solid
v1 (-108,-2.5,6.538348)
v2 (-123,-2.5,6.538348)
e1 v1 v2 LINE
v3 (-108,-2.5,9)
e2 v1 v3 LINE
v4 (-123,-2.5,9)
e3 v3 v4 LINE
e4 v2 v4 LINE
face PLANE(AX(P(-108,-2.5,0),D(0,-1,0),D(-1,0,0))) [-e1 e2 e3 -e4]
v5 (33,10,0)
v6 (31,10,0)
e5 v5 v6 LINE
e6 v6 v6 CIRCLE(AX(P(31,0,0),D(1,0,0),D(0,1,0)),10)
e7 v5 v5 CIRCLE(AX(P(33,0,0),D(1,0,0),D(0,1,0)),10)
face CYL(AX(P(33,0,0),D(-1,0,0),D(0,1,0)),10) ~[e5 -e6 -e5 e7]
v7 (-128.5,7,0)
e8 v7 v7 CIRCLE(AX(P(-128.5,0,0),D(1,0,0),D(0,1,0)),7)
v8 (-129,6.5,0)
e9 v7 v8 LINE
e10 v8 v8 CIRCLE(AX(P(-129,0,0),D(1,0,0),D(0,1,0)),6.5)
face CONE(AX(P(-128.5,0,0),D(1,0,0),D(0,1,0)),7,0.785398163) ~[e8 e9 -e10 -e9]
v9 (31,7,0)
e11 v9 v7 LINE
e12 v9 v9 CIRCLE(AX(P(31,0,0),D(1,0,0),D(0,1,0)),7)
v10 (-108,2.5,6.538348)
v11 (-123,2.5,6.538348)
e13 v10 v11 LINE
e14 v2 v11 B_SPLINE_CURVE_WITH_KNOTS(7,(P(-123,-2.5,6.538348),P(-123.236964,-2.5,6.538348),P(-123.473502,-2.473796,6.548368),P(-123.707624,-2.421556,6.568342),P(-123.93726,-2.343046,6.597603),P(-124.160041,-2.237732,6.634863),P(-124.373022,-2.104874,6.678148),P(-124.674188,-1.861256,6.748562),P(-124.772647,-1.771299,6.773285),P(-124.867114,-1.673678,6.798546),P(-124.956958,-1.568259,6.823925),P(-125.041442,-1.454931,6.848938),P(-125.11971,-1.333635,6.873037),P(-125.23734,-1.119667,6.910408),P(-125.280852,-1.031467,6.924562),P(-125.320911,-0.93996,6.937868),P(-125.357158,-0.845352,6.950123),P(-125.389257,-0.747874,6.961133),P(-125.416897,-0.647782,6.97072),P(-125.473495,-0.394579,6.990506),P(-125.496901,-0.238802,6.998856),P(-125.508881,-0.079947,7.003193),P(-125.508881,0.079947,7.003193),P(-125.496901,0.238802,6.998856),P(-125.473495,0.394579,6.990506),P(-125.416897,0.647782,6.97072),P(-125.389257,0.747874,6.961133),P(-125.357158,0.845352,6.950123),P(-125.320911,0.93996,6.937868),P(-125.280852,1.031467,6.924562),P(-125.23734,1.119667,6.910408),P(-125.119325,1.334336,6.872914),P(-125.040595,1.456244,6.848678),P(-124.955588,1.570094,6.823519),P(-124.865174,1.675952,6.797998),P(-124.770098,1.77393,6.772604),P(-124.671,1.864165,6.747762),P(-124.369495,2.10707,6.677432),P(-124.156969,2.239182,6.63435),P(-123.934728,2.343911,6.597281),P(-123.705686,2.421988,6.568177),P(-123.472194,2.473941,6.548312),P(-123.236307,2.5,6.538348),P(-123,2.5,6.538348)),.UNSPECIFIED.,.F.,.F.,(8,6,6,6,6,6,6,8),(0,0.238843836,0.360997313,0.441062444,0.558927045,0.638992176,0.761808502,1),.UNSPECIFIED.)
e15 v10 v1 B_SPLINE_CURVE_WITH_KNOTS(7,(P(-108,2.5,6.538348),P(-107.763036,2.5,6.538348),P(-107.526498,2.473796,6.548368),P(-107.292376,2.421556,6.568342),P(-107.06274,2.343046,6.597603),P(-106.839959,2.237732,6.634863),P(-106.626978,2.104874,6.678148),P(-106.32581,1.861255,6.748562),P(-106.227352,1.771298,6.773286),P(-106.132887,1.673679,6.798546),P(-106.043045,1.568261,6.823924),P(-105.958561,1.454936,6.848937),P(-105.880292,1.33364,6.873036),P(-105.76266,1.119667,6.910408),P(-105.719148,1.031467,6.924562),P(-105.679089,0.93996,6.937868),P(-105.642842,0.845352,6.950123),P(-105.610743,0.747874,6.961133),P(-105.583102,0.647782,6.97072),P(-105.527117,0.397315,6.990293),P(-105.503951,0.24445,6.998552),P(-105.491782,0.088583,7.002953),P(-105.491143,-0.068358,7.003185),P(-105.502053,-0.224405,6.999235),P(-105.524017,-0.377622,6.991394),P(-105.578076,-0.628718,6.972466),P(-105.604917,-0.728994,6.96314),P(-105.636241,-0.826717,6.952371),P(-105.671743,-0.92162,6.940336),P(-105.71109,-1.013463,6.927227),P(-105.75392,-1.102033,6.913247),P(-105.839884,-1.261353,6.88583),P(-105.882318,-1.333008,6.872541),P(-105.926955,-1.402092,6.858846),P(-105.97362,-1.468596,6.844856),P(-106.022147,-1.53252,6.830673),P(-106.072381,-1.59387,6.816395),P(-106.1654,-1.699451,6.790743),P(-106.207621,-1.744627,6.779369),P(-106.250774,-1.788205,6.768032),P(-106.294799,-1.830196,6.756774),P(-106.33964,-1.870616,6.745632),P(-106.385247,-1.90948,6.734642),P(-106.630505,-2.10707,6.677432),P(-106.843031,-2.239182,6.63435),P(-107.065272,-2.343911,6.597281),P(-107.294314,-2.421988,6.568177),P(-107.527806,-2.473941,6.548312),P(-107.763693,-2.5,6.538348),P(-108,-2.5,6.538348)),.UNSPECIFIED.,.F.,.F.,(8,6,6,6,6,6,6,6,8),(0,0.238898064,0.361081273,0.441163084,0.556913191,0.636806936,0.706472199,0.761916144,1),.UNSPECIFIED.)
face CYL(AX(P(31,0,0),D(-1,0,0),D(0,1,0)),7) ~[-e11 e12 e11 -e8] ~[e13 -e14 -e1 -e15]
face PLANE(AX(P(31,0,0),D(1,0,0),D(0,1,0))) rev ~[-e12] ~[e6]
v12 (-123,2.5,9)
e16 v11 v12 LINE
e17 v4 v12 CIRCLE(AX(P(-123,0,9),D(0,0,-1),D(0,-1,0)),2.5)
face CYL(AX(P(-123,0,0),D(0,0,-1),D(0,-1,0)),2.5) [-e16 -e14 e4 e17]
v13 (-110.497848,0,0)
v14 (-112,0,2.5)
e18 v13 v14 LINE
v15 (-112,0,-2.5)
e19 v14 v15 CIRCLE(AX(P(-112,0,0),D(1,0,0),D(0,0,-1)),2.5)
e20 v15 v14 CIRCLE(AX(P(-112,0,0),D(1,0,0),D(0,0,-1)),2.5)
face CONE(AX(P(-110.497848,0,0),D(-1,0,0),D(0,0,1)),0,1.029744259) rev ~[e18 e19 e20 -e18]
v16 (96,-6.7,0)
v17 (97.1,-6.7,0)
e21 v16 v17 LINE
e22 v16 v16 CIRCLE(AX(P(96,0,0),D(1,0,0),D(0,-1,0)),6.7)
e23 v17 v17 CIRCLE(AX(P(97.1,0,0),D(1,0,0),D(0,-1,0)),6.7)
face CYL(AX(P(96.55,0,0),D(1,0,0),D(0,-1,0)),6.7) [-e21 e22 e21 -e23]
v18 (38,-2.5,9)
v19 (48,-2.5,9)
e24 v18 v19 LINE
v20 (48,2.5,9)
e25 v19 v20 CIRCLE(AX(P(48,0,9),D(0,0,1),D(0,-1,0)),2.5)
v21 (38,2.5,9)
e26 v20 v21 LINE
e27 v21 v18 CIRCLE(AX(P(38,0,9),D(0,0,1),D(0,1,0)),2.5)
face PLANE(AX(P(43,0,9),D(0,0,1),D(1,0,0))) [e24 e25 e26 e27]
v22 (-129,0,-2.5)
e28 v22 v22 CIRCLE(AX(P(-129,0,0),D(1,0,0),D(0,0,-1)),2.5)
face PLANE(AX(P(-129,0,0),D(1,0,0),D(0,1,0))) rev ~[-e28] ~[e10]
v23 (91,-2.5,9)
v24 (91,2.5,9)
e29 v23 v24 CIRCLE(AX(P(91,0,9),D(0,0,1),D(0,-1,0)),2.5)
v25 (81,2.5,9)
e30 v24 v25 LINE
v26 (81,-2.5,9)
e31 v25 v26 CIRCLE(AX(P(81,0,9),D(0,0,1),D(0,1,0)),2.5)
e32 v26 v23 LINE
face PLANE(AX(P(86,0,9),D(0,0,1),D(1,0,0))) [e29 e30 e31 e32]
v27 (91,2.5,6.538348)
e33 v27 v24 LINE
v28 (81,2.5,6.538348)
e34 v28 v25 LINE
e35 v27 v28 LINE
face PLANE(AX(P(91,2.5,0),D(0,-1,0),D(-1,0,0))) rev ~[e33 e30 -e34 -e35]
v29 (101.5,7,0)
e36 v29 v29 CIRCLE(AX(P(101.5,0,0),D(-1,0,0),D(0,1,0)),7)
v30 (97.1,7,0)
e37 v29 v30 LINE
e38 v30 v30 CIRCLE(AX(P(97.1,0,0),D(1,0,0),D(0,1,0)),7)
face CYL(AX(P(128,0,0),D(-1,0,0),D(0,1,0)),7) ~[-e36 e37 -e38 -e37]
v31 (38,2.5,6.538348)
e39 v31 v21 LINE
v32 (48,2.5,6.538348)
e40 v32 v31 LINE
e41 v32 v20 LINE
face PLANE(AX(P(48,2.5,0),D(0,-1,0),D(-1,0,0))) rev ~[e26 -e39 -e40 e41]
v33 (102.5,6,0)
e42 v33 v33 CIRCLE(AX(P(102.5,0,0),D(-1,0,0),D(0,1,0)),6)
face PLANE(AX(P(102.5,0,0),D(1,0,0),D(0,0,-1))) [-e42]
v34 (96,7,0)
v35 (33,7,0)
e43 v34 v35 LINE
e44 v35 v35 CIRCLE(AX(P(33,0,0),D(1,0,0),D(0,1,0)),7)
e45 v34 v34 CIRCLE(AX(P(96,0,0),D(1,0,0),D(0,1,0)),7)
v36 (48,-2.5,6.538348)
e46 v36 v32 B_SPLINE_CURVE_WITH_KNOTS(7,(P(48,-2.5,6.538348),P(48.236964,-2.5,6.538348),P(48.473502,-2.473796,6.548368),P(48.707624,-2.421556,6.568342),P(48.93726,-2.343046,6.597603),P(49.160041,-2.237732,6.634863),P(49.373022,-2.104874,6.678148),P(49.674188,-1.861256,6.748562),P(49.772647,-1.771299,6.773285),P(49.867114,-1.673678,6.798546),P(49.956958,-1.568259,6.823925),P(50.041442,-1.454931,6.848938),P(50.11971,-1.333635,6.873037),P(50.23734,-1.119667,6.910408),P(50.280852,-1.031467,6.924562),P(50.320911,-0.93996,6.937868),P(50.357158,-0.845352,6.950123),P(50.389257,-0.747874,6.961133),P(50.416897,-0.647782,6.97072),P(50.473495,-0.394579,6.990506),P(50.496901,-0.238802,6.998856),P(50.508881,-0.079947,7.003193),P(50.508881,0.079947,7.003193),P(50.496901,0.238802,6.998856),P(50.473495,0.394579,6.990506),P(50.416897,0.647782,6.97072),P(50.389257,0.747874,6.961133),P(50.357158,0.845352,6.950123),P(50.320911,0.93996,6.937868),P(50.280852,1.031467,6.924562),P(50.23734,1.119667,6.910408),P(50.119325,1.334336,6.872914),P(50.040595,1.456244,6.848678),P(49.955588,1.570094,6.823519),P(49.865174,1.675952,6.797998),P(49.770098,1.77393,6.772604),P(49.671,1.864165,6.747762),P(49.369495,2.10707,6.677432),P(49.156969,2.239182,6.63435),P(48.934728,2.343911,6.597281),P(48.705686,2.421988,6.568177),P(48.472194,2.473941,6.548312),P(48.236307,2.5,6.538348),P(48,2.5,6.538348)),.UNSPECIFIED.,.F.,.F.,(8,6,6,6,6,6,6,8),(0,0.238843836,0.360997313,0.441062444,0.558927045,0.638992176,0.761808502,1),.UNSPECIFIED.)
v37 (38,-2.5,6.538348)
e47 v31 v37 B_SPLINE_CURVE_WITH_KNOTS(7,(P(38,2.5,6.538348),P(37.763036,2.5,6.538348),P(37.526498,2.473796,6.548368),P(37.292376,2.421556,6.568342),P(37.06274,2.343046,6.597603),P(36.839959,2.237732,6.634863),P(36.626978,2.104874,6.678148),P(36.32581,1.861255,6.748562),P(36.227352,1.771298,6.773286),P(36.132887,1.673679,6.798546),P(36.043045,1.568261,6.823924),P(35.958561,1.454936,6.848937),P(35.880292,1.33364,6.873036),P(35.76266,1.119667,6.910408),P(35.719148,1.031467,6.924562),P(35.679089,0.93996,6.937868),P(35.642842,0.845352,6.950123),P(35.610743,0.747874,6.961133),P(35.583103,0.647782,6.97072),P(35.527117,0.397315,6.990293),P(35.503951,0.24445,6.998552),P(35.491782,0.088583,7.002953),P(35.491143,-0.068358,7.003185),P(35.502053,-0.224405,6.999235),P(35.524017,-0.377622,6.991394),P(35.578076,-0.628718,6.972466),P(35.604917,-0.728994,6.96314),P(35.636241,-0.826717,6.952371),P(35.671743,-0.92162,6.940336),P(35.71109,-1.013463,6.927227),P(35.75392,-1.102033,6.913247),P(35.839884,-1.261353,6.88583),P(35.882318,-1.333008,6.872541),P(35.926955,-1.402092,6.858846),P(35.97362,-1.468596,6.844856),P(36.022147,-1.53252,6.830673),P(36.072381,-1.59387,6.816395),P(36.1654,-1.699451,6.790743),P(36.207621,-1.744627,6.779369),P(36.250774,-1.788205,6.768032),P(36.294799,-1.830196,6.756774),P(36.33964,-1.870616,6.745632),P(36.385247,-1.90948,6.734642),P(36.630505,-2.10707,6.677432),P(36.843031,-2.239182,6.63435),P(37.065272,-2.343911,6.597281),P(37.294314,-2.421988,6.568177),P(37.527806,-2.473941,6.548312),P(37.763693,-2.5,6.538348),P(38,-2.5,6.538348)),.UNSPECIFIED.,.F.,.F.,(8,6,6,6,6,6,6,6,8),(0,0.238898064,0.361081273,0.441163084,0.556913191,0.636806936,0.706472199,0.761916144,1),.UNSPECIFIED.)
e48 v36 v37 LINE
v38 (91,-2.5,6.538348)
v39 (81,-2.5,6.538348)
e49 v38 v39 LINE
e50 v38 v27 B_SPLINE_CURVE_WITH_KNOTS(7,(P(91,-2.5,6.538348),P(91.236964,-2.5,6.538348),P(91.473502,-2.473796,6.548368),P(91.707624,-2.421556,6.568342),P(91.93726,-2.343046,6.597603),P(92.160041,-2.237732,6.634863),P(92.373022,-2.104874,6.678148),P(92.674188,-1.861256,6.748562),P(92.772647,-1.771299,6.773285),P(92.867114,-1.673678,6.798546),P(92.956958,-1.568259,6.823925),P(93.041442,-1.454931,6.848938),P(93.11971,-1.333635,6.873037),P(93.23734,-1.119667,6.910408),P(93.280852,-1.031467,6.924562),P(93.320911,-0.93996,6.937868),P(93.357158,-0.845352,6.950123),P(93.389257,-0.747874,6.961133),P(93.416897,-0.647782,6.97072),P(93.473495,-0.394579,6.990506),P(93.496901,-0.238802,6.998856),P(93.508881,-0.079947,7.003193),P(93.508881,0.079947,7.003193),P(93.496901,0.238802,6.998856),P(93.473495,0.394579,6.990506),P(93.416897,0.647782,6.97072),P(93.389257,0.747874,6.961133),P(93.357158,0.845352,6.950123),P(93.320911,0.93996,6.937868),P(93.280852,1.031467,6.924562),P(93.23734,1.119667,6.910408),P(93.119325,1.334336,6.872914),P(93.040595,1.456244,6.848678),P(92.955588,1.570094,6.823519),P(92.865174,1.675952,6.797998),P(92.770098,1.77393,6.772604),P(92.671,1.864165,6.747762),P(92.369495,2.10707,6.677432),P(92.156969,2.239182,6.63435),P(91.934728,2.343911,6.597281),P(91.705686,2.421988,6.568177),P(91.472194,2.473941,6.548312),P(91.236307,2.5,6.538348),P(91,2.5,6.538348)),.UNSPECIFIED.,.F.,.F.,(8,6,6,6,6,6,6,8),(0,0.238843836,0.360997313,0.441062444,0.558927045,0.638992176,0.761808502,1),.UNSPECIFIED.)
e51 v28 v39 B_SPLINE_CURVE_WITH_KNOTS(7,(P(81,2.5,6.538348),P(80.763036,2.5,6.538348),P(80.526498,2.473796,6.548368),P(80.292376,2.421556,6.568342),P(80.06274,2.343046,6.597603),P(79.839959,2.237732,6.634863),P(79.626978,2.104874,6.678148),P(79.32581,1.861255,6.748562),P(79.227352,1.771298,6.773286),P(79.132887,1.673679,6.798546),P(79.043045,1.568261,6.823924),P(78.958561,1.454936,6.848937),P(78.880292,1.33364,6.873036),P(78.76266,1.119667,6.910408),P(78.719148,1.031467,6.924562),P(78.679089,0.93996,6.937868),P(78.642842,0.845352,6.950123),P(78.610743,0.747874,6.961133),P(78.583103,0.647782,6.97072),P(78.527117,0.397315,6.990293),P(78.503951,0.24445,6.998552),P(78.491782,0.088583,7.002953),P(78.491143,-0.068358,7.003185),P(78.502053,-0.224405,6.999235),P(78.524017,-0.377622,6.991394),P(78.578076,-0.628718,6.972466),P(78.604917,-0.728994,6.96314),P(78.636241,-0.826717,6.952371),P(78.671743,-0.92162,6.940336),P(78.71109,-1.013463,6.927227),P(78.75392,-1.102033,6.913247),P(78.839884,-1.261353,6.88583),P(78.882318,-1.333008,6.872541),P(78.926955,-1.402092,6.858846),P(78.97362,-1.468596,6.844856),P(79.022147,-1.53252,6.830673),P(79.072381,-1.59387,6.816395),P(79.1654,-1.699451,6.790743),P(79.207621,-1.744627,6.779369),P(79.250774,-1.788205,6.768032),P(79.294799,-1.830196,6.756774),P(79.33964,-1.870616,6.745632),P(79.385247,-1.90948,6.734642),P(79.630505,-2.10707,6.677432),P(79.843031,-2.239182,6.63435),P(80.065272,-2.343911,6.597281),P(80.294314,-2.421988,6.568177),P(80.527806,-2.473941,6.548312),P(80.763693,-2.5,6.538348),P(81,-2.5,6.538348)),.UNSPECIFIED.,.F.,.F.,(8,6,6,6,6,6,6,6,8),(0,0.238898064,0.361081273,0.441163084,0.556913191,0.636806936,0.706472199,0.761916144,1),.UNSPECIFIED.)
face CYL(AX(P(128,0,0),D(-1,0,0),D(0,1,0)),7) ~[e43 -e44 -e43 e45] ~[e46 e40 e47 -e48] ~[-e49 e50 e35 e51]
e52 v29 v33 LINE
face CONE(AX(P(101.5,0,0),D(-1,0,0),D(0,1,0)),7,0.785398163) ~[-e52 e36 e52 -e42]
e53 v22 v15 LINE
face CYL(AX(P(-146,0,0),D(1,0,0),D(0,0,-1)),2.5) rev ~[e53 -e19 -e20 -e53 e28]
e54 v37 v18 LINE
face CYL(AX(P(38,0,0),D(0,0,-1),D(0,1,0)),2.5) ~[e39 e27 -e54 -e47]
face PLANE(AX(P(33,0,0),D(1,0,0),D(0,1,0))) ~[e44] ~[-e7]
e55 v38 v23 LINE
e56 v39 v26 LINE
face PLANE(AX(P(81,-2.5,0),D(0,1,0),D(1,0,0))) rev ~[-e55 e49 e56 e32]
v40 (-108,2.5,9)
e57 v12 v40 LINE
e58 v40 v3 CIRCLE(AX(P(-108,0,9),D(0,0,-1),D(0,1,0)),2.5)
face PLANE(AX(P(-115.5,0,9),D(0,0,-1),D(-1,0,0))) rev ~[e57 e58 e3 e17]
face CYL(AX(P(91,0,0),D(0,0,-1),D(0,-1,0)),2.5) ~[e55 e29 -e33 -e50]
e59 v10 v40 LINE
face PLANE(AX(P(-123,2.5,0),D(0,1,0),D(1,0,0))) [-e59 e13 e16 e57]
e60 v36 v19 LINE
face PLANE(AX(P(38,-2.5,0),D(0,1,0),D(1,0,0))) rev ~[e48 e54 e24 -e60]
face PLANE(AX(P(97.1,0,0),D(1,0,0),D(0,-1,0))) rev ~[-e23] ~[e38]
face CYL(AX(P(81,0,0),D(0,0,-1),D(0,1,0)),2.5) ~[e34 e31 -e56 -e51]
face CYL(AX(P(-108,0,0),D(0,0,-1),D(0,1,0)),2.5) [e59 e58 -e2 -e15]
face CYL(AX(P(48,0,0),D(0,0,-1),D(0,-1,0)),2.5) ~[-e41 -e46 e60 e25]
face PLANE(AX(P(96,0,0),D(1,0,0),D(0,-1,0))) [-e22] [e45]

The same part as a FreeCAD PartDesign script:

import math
import FreeCAD as App
import Part
import Sketcher
from FreeCAD import Vector
Q = App.Units.Quantity


def edges_at(feature, points):
    """Names of the edges that pass closest to the given points."""
    edges = feature.Shape.Edges
    near = lambda p: min(range(len(edges)), key=lambda i: edges[i].distToShape(Part.Vertex(*p))[0])
    return sorted({f"Edge{near(p) + 1}" for p in points})


def add_polygon(sketch, points):
    """Adds a closed chain of lines whose ends are joined by coincident constraints."""
    first, n = sketch.GeometryCount, len(points)
    for a, b in zip(points, points[1:] + points[:1]):
        sketch.addGeometry(Part.LineSegment(App.Vector(*a, 0), App.Vector(*b, 0)), False)
    for i in range(n):
        sketch.addConstraint(Sketcher.Constraint("Coincident", first + i, 2, first + (i + 1) % n, 1))

doc = App.newDocument("Part")
body = doc.addObject("PartDesign::Body", "Body")

sketch1 = body.newObject("Sketcher::SketchObject", "Sketch")
sketch1.AttachmentSupport = (doc.getObject("XY_Plane"), [""])
sketch1.MapMode = "FlatFace"
add_polygon(sketch1, [(-129, 0), (129, 0), (129, 6), (128, 7), (33, 7), (33, 10), (31, 10), (31, 7), (-128.5, 7), (-129, 6.5)])
sketch1.addConstraint([
    Sketcher.Constraint("Horizontal", 0),
    Sketcher.Constraint("Vertical", 1),
    Sketcher.Constraint("Horizontal", 3),
    Sketcher.Constraint("Vertical", 4),
    Sketcher.Constraint("Horizontal", 5),
    Sketcher.Constraint("Vertical", 6),
    Sketcher.Constraint("Horizontal", 7),
    Sketcher.Constraint("Vertical", 9),
    Sketcher.Constraint("Symmetric", 0, 2, 9, 2, -1, 1),
    Sketcher.Constraint("Perpendicular", 2, 8),
    Sketcher.Constraint("Horizontal", 3, 2, 6, 2),
    Sketcher.Constraint("DistanceX", 0, 1, 0, 2, Q("258 mm")),
    Sketcher.Constraint("DistanceX", 3, 2, 3, 1, Q("95 mm")),
    Sketcher.Constraint("DistanceX", 5, 2, 5, 1, Q("2 mm")),
    Sketcher.Constraint("DistanceY", 1, 1, 1, 2, Q("6 mm")),
    Sketcher.Constraint("DistanceY", 4, 1, 4, 2, Q("3 mm")),
    Sketcher.Constraint("Angle", 2, Q("135 deg")),
    Sketcher.Constraint("DistanceX", 7, 2, 7, 1, Q("159.5 mm")),
    Sketcher.Constraint("DistanceY", 9, 2, 9, 1, Q("6.5 mm")),
])
revolution = body.newObject("PartDesign::Revolution", "Revolution")
revolution.Profile = sketch1
revolution.ReferenceAxis = (sketch1, ["H_Axis"])
revolution.Angle = 360

sketch2 = body.newObject("Sketcher::SketchObject", "Sketch001")
sketch2.AttachmentSupport = (doc.getObject("XY_Plane"), [""])
sketch2.MapMode = "FlatFace"
sketch2.addGeometry([
    Part.ArcOfCircle(Part.Circle(Vector(-108, 0, 0), Vector(0, 0, 1), 2.5), math.radians(-90), math.radians(90)),
    Part.LineSegment(Vector(-108, 2.5, 0), Vector(-123, 2.5, 0)),
    Part.ArcOfCircle(Part.Circle(Vector(-123, 0, 0), Vector(0, 0, 1), 2.5), math.radians(90), math.radians(270)),
    Part.LineSegment(Vector(-123, -2.5, 0), Vector(-108, -2.5, 0)),
    Part.LineSegment(Vector(38, -2.5, 0), Vector(48, -2.5, 0)),
    Part.ArcOfCircle(Part.Circle(Vector(48, 0, 0), Vector(0, 0, 1), 2.5), math.radians(-90), math.radians(90)),
    Part.LineSegment(Vector(48, 2.5, 0), Vector(38, 2.5, 0)),
    Part.ArcOfCircle(Part.Circle(Vector(38, 0, 0), Vector(0, 0, 1), 2.5), math.radians(90), math.radians(270)),
    Part.LineSegment(Vector(123, 2.5, 0), Vector(108, 2.5, 0)),
    Part.ArcOfCircle(Part.Circle(Vector(108, 0, 0), Vector(0, 0, 1), 2.5), math.radians(90), math.radians(270)),
    Part.LineSegment(Vector(108, -2.5, 0), Vector(123, -2.5, 0)),
    Part.ArcOfCircle(Part.Circle(Vector(123, 0, 0), Vector(0, 0, 1), 2.5), math.radians(-90), math.radians(90)),
    Part.LineSegment(Vector(81, -2.5, 0), Vector(91, -2.5, 0)),
    Part.ArcOfCircle(Part.Circle(Vector(91, 0, 0), Vector(0, 0, 1), 2.5), math.radians(-90), math.radians(90)),
    Part.LineSegment(Vector(91, 2.5, 0), Vector(81, 2.5, 0)),
    Part.ArcOfCircle(Part.Circle(Vector(81, 0, 0), Vector(0, 0, 1), 2.5), math.radians(90), math.radians(270)),
], False)
sketch2.addConstraint([
    Sketcher.Constraint("Tangent", 0, 2, 1, 1),
    Sketcher.Constraint("Tangent", 1, 2, 2, 1),
    Sketcher.Constraint("Tangent", 2, 2, 3, 1),
    Sketcher.Constraint("Tangent", 3, 2, 0, 1),
    Sketcher.Constraint("Tangent", 4, 2, 5, 1),
    Sketcher.Constraint("Tangent", 5, 2, 6, 1),
    Sketcher.Constraint("Tangent", 6, 2, 7, 1),
    Sketcher.Constraint("Tangent", 7, 2, 4, 1),
    Sketcher.Constraint("Tangent", 8, 2, 9, 1),
    Sketcher.Constraint("Tangent", 9, 2, 10, 1),
    Sketcher.Constraint("Tangent", 10, 2, 11, 1),
    Sketcher.Constraint("Tangent", 11, 2, 8, 1),
    Sketcher.Constraint("Tangent", 12, 2, 13, 1),
    Sketcher.Constraint("Tangent", 13, 2, 14, 1),
    Sketcher.Constraint("Tangent", 14, 2, 15, 1),
    Sketcher.Constraint("Tangent", 15, 2, 12, 1),
    Sketcher.Constraint("Horizontal", 1),
    Sketcher.Constraint("Horizontal", 3),
    Sketcher.Constraint("Horizontal", 4),
    Sketcher.Constraint("Horizontal", 6),
    Sketcher.Constraint("Horizontal", 8),
    Sketcher.Constraint("Horizontal", 10),
    Sketcher.Constraint("Horizontal", 12),
    Sketcher.Constraint("Horizontal", 14),
    Sketcher.Constraint("Equal", 2, 5),
    Sketcher.Constraint("Equal", 7, 9),
    Sketcher.Constraint("Equal", 11, 13),
    Sketcher.Constraint("Symmetric", 0, 3, 9, 3, -1, 1),
    Sketcher.Constraint("Symmetric", 2, 3, 11, 3, -2),
    Sketcher.Constraint("PointOnObject", 5, 3, -1),
    Sketcher.Constraint("PointOnObject", 13, 3, -1),
    Sketcher.Constraint("Equal", 6, 12),
    Sketcher.Constraint("Radius", 0, Q("2.5 mm")),
    Sketcher.Constraint("DistanceX", 1, 2, 1, 1, Q("15 mm")),
    Sketcher.Constraint("DistanceX", 4, 1, 4, 2, Q("10 mm")),
    Sketcher.Constraint("DistanceX", 0, 3, -1, 1, Q("108 mm")),
    Sketcher.Constraint("DistanceX", -1, 1, 5, 3, Q("48 mm")),
    Sketcher.Constraint("DistanceX", -1, 1, 13, 3, Q("91 mm")),
])
pad1 = body.newObject("PartDesign::Pad", "Pad")
pad1.Profile = sketch2
pad1.Length = 9

sketch3 = body.newObject("Sketcher::SketchObject", "Sketch002")
sketch3.AttachmentSupport = (doc.getObject("YZ_Plane"), [""])
sketch3.MapMode = "FlatFace"
sketch3.AttachmentOffset = App.Placement(Vector(0, 0, 129), App.Rotation())
sketch3.addGeometry(Part.Circle(Vector(0, 0, 0), Vector(0, 0, 1), 15), False)
sketch3.addConstraint([
    Sketcher.Constraint("Coincident", 0, 3, -1, 1),
    Sketcher.Constraint("Diameter", 0, Q("30 mm")),
])
pocket1 = body.newObject("PartDesign::Pocket", "Pocket")
pocket1.Profile = sketch3
pocket1.Length = 26.5

sketch4 = body.newObject("Sketcher::SketchObject", "Sketch003")
sketch4.AttachmentSupport = (doc.getObject("YZ_Plane"), [""])
sketch4.MapMode = "FlatFace"
sketch4.AttachmentOffset = App.Placement(Vector(0, 0, -129), App.Rotation())
sketch4.addGeometry(Part.Circle(Vector(0, 0, 0), Vector(0, 0, 1), 2.5), False)
sketch4.addConstraint([
    Sketcher.Constraint("Coincident", 0, 3, -1, 1),
    Sketcher.Constraint("Diameter", 0, Q("5 mm")),
])
doc.recompute()
hole = body.newObject("PartDesign::Hole", "Hole")
hole.Profile = sketch4
hole.ThreadType = "None"
hole.Diameter = 5
hole.DepthType = "Dimension"
hole.Depth = 17
hole.DrillPoint = "Angled"
hole.DrillPointAngle = 118
hole.Reversed = True
doc.recompute()

chamfer = body.newObject("PartDesign::Chamfer", "Chamfer")
chamfer.Base = (hole, edges_at(hole, [(102.5, -7, 0)]))
chamfer.Size = 1

sketch5 = body.newObject("Sketcher::SketchObject", "Sketch004")
sketch5.AttachmentSupport = (doc.getObject("XY_Plane"), [""])
sketch5.MapMode = "FlatFace"
add_polygon(sketch5, [(96, -6.7), (96, -7), (97.1, -7), (97.1, -6.7)])
sketch5.addConstraint([
    Sketcher.Constraint("Vertical", 0),
    Sketcher.Constraint("Horizontal", 1),
    Sketcher.Constraint("Vertical", 2),
    Sketcher.Constraint("Horizontal", 3),
    Sketcher.Constraint("DistanceX", 1, 1, 1, 2, Q("1.1 mm")),
    Sketcher.Constraint("DistanceY", 0, 2, 0, 1, Q("0.3 mm")),
    Sketcher.Constraint("DistanceX", -1, 1, 0, 2, Q("96 mm")),
    Sketcher.Constraint("DistanceY", 0, 2, -1, 1, Q("7 mm")),
])
groove = body.newObject("PartDesign::Groove", "Groove")
groove.Profile = sketch5
groove.ReferenceAxis = (sketch5, ["H_Axis"])
groove.Angle = 360

doc.recompute()
